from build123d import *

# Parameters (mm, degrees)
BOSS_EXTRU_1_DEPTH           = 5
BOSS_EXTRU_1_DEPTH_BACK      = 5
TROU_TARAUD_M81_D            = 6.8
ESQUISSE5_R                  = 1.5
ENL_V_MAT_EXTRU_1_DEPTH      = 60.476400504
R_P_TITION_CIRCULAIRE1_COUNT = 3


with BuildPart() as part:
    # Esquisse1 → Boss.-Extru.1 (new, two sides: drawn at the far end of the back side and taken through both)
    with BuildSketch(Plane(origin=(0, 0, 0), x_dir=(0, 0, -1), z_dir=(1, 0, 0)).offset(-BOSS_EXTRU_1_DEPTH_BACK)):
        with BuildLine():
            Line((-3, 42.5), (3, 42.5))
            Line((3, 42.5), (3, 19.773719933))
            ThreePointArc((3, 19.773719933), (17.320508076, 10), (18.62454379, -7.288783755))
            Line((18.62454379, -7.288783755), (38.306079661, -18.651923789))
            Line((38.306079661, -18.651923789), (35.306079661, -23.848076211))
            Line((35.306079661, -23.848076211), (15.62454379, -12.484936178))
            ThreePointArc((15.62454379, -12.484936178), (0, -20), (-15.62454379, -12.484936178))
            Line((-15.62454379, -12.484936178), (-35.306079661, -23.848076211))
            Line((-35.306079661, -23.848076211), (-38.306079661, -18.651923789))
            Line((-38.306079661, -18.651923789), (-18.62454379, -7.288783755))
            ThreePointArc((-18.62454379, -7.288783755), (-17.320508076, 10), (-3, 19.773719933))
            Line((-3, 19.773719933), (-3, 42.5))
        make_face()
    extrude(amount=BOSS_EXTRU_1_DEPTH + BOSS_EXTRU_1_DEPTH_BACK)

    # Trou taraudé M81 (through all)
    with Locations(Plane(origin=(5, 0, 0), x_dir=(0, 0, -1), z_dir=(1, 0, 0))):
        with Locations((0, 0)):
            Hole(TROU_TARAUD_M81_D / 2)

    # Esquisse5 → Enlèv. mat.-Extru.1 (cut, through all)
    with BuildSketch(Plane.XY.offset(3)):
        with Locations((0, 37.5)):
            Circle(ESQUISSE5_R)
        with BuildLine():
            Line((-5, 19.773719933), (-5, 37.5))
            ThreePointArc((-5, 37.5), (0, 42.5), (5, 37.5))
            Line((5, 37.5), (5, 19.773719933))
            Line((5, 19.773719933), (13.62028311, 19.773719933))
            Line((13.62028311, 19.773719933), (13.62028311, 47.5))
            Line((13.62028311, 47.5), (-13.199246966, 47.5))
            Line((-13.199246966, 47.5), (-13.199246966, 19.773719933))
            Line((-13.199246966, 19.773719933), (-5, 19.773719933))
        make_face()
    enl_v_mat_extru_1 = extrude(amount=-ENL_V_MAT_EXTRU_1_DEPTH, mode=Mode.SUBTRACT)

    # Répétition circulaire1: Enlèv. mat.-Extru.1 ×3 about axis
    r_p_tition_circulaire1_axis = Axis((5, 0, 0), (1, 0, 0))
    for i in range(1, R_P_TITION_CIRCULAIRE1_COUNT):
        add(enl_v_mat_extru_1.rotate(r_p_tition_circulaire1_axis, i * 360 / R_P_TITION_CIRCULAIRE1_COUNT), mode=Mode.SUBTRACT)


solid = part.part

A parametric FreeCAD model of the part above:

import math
import FreeCAD as App
import Part
import Sketcher
Q = App.Units.Quantity

doc = App.newDocument("Part")
body = doc.addObject("PartDesign::Body", "Body")

# Sketch on YZ plane
sketch1 = body.newObject("Sketcher::SketchObject", "Sketch")
sketch1.AttachmentSupport = (doc.getObject("YZ_Plane"), [""])
sketch1.MapMode = "FlatFace"
sketch1.addGeometry([
    Part.LineSegment(App.Vector(42, -3, 0), App.Vector(42, 3, 0)),  # 0
    Part.LineSegment(App.Vector(42, 3, 0), App.Vector(20, 3, 0)),  # 1
    Part.ArcOfCircle(Part.Circle(App.Vector(0, 0, 0), App.Vector(0, 0, 1), 20), math.radians(9), math.radians(111)),  # 2
    Part.LineSegment(App.Vector(-7, 19, 0), App.Vector(-19, 38, 0)),  # 3
    Part.LineSegment(App.Vector(-19, 38, 0), App.Vector(-24, 35, 0)),  # 4
    Part.LineSegment(App.Vector(-24, 35, 0), App.Vector(-12, 16, 0)),  # 5
    Part.ArcOfCircle(Part.Circle(App.Vector(0, 0, 0), App.Vector(0, 0, 1), 20), math.radians(129), math.radians(231)),  # 6
    Part.LineSegment(App.Vector(-12, -16, 0), App.Vector(-24, -35, 0)),  # 7
    Part.LineSegment(App.Vector(-24, -35, 0), App.Vector(-19, -38, 0)),  # 8
    Part.LineSegment(App.Vector(-19, -38, 0), App.Vector(-7, -19, 0)),  # 9
    Part.ArcOfCircle(Part.Circle(App.Vector(0, 0, 0), App.Vector(0, 0, 1), 20), math.radians(-111), math.radians(-9)),  # 10
    Part.LineSegment(App.Vector(20, -3, 0), App.Vector(42, -3, 0)),  # 11
], False)
sketch1.addConstraint([
    Sketcher.Constraint("Coincident", 0, 2, 1, 1),
    Sketcher.Constraint("Coincident", 1, 2, 2, 1),
    Sketcher.Constraint("Coincident", 2, 2, 3, 1),
    Sketcher.Constraint("Coincident", 3, 2, 4, 1),
    Sketcher.Constraint("Coincident", 4, 2, 5, 1),
    Sketcher.Constraint("Coincident", 5, 2, 6, 1),
    Sketcher.Constraint("Coincident", 6, 2, 7, 1),
    Sketcher.Constraint("Coincident", 7, 2, 8, 1),
    Sketcher.Constraint("Coincident", 8, 2, 9, 1),
    Sketcher.Constraint("Coincident", 9, 2, 10, 1),
    Sketcher.Constraint("Coincident", 10, 2, 11, 1),
    Sketcher.Constraint("Coincident", 11, 2, 0, 1),
    Sketcher.Constraint("Vertical", 0),
    Sketcher.Constraint("Horizontal", 1),
    Sketcher.Constraint("Horizontal", 11),
    Sketcher.Constraint("Coincident", 2, 3, -1, 1),
    Sketcher.Constraint("Coincident", 6, 3, -1, 1),
    Sketcher.Constraint("Coincident", 10, 3, -1, 1),
    Sketcher.Constraint("Equal", 2, 6),
    Sketcher.Constraint("Equal", 6, 10),
    Sketcher.Constraint("Symmetric", 4, 2, 7, 2, -1),
    Sketcher.Constraint("Symmetric", 3, 2, 8, 2, -1),
    Sketcher.Constraint("Perpendicular", 3, 4),
    Sketcher.Constraint("Perpendicular", 4, 5),
    Sketcher.Constraint("Perpendicular", 7, 8),
    Sketcher.Constraint("Perpendicular", 8, 9),
    Sketcher.Constraint("Vertical", 1, 2, 10, 2),
    Sketcher.Constraint("Equal", 3, 5),
    Sketcher.Constraint("Radius", 2, 20.0),
    Sketcher.Constraint("DistanceY", 0, 1, 0, 2, 6.0),
    Sketcher.Constraint("Angle", 3, Q("120 deg")),
    Sketcher.Constraint("Distance", 4, 6.0),
    Sketcher.Constraint("DistanceX", -1, 1, 0, 2, 42.5),
    Sketcher.Constraint("Distance", 3, 22.72628),
])
pad1 = body.newObject("PartDesign::Pad", "Pad")
pad1.Profile = sketch1
pad1.Type = "TwoLengths"
pad1.Length = 5
pad1.Length2 = 5

# Sketch on YZ plane
sketch2 = body.newObject("Sketcher::SketchObject", "Sketch001")
sketch2.AttachmentSupport = (doc.getObject("YZ_Plane"), [""])
sketch2.MapMode = "FlatFace"
sketch2.AttachmentOffset = App.Placement(App.Vector(0, 0, 5), App.Rotation())
sketch2.addGeometry(Part.Circle(App.Vector(0, 0, 0), App.Vector(0, 0, 1), 3.4), False)
sketch2.addConstraint([
    Sketcher.Constraint("Coincident", 0, 3, -1, 1),
    Sketcher.Constraint("Diameter", 0, 6.8),
])
doc.recompute()
hole = body.newObject("PartDesign::Hole", "Hole")
hole.Profile = sketch2
hole.ThreadType = "None"
hole.Diameter = 6.8
hole.DepthType = "ThroughAll"

# Sketch on XY plane
sketch3 = body.newObject("Sketcher::SketchObject", "Sketch002")
sketch3.AttachmentSupport = (doc.getObject("XY_Plane"), [""])
sketch3.MapMode = "FlatFace"
sketch3.AttachmentOffset = App.Placement(App.Vector(0, 0, 3), App.Rotation())
sketch3.addGeometry([
    Part.Circle(App.Vector(0, 37.5, 0), App.Vector(0, 0, 1), 1.5),  # 0
    Part.LineSegment(App.Vector(-5, 19.8, 0), App.Vector(-5, 37.5, 0)),  # 1
    Part.ArcOfCircle(Part.Circle(App.Vector(0, 37.5, 0), App.Vector(0, 0, 1), 5), math.radians(0), math.radians(180)),  # 2
    Part.LineSegment(App.Vector(5, 37.5, 0), App.Vector(5, 19.8, 0)),  # 3
    Part.LineSegment(App.Vector(5, 19.8, 0), App.Vector(13.6, 19.8, 0)),  # 4
    Part.LineSegment(App.Vector(13.6, 19.8, 0), App.Vector(13.6, 47.5, 0)),  # 5
    Part.LineSegment(App.Vector(13.6, 47.5, 0), App.Vector(-13.2, 47.5, 0)),  # 6
    Part.LineSegment(App.Vector(-13.2, 47.5, 0), App.Vector(-13.2, 19.8, 0)),  # 7
    Part.LineSegment(App.Vector(-13.2, 19.8, 0), App.Vector(-5, 19.8, 0)),  # 8
], False)
sketch3.addConstraint([
    Sketcher.Constraint("Tangent", 1, 2, 2, 2),
    Sketcher.Constraint("Tangent", 2, 1, 3, 1),
    Sketcher.Constraint("Coincident", 3, 2, 4, 1),
    Sketcher.Constraint("Coincident", 4, 2, 5, 1),
    Sketcher.Constraint("Coincident", 5, 2, 6, 1),
    Sketcher.Constraint("Coincident", 6, 2, 7, 1),
    Sketcher.Constraint("Coincident", 7, 2, 8, 1),
    Sketcher.Constraint("Coincident", 8, 2, 1, 1),
    Sketcher.Constraint("Vertical", 1),
    Sketcher.Constraint("Vertical", 3),
    Sketcher.Constraint("Horizontal", 4),
    Sketcher.Constraint("Vertical", 5),
    Sketcher.Constraint("Horizontal", 6),
    Sketcher.Constraint("Vertical", 7),
    Sketcher.Constraint("Horizontal", 8),
    Sketcher.Constraint("Coincident", 2, 3, 0, 3),
    Sketcher.Constraint("Symmetric", 3, 2, 8, 2, -2),
    Sketcher.Constraint("Diameter", 0, 3.0),
    Sketcher.Constraint("Radius", 2, 5.0),
    Sketcher.Constraint("DistanceY", 2, 1, 5, 2, 10.0),
    Sketcher.Constraint("DistanceY", -1, 1, 0, 3, 37.5),
    Sketcher.Constraint("DistanceX", 6, 2, 6, 1, 26.81953),
    Sketcher.Constraint("DistanceY", 1, 1, 1, 2, 17.72628),
    Sketcher.Constraint("DistanceX", 4, 1, 4, 2, 8.620283),
])
pocket1 = body.newObject("PartDesign::Pocket", "Pocket")
pocket1.Profile = sketch3
pocket1.Type = "ThroughAll"
doc.recompute()

polarpattern = body.newObject("PartDesign::PolarPattern", "PolarPattern")
polarpattern.Originals = [pocket1]
polarpattern.Axis = (doc.getObject("X_Axis"), [""])
polarpattern.Angle = 360
polarpattern.Occurrences = 3
body.Tip = polarpattern

doc.recompute()
